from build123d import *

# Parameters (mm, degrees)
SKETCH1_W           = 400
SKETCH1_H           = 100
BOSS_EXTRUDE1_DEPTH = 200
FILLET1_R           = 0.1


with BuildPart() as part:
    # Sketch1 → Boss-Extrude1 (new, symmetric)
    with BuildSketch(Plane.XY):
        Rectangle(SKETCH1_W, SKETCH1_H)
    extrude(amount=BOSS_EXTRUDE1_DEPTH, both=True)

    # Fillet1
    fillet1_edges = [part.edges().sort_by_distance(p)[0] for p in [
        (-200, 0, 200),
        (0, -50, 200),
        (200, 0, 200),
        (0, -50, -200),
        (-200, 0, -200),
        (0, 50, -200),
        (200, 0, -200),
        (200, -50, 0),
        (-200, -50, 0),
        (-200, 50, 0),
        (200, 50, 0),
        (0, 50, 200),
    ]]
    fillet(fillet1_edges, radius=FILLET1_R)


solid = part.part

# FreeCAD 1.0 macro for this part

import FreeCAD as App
import Part
import Sketcher
from FreeCAD import Vector
Q = App.Units.Quantity

doc = App.newDocument("Part")
body = doc.addObject("PartDesign::Body", "Body")

# Sketch on XY plane
sketch1 = doc.addObject("Sketcher::SketchObject", "Sketch")
body.addObject(sketch1)
sketch1.AttachmentSupport = (doc.XY_Plane, [""])
sketch1.MapMode = "FlatFace"
sketch1.addGeometry(Part.LineSegment(Vector(-200, 50, 0), Vector(-200, -50, 0)), False)
sketch1.addGeometry(Part.LineSegment(Vector(-200, -50, 0), Vector(200, -50, 0)), False)
sketch1.addGeometry(Part.LineSegment(Vector(200, -50, 0), Vector(200, 50, 0)), False)
sketch1.addGeometry(Part.LineSegment(Vector(200, 50, 0), Vector(-200, 50, 0)), False)
sketch1.addConstraint(Sketcher.Constraint("Coincident", 0, 2, 1, 1))
sketch1.addConstraint(Sketcher.Constraint("Coincident", 1, 2, 2, 1))
sketch1.addConstraint(Sketcher.Constraint("Coincident", 2, 2, 3, 1))
sketch1.addConstraint(Sketcher.Constraint("Coincident", 3, 2, 0, 1))
sketch1.addConstraint(Sketcher.Constraint("Vertical", 0))
sketch1.addConstraint(Sketcher.Constraint("Horizontal", 1))
sketch1.addConstraint(Sketcher.Constraint("Vertical", 2))
sketch1.addConstraint(Sketcher.Constraint("Horizontal", 3))
sketch1.addConstraint(Sketcher.Constraint("Symmetric", 0, 2, 2, 2, -1, 1))
sketch1.addConstraint(Sketcher.Constraint("DistanceX", 1, 1, 1, 2, Q("400 mm")))
sketch1.addConstraint(Sketcher.Constraint("DistanceY", 0, 2, 0, 1, Q("100 mm")))
pad1 = doc.addObject("PartDesign::Pad", "Pad")
body.addObject(pad1)
pad1.Profile = sketch1
pad1.Length = 400
pad1.Midplane = True
doc.recompute()

fillet = doc.addObject("PartDesign::Fillet", "Fillet")
body.addObject(fillet)
fillet.Base = (pad1, ["Edge1"])
fillet.UseAllEdges = True
fillet.Radius = 0.1

doc.recompute()
